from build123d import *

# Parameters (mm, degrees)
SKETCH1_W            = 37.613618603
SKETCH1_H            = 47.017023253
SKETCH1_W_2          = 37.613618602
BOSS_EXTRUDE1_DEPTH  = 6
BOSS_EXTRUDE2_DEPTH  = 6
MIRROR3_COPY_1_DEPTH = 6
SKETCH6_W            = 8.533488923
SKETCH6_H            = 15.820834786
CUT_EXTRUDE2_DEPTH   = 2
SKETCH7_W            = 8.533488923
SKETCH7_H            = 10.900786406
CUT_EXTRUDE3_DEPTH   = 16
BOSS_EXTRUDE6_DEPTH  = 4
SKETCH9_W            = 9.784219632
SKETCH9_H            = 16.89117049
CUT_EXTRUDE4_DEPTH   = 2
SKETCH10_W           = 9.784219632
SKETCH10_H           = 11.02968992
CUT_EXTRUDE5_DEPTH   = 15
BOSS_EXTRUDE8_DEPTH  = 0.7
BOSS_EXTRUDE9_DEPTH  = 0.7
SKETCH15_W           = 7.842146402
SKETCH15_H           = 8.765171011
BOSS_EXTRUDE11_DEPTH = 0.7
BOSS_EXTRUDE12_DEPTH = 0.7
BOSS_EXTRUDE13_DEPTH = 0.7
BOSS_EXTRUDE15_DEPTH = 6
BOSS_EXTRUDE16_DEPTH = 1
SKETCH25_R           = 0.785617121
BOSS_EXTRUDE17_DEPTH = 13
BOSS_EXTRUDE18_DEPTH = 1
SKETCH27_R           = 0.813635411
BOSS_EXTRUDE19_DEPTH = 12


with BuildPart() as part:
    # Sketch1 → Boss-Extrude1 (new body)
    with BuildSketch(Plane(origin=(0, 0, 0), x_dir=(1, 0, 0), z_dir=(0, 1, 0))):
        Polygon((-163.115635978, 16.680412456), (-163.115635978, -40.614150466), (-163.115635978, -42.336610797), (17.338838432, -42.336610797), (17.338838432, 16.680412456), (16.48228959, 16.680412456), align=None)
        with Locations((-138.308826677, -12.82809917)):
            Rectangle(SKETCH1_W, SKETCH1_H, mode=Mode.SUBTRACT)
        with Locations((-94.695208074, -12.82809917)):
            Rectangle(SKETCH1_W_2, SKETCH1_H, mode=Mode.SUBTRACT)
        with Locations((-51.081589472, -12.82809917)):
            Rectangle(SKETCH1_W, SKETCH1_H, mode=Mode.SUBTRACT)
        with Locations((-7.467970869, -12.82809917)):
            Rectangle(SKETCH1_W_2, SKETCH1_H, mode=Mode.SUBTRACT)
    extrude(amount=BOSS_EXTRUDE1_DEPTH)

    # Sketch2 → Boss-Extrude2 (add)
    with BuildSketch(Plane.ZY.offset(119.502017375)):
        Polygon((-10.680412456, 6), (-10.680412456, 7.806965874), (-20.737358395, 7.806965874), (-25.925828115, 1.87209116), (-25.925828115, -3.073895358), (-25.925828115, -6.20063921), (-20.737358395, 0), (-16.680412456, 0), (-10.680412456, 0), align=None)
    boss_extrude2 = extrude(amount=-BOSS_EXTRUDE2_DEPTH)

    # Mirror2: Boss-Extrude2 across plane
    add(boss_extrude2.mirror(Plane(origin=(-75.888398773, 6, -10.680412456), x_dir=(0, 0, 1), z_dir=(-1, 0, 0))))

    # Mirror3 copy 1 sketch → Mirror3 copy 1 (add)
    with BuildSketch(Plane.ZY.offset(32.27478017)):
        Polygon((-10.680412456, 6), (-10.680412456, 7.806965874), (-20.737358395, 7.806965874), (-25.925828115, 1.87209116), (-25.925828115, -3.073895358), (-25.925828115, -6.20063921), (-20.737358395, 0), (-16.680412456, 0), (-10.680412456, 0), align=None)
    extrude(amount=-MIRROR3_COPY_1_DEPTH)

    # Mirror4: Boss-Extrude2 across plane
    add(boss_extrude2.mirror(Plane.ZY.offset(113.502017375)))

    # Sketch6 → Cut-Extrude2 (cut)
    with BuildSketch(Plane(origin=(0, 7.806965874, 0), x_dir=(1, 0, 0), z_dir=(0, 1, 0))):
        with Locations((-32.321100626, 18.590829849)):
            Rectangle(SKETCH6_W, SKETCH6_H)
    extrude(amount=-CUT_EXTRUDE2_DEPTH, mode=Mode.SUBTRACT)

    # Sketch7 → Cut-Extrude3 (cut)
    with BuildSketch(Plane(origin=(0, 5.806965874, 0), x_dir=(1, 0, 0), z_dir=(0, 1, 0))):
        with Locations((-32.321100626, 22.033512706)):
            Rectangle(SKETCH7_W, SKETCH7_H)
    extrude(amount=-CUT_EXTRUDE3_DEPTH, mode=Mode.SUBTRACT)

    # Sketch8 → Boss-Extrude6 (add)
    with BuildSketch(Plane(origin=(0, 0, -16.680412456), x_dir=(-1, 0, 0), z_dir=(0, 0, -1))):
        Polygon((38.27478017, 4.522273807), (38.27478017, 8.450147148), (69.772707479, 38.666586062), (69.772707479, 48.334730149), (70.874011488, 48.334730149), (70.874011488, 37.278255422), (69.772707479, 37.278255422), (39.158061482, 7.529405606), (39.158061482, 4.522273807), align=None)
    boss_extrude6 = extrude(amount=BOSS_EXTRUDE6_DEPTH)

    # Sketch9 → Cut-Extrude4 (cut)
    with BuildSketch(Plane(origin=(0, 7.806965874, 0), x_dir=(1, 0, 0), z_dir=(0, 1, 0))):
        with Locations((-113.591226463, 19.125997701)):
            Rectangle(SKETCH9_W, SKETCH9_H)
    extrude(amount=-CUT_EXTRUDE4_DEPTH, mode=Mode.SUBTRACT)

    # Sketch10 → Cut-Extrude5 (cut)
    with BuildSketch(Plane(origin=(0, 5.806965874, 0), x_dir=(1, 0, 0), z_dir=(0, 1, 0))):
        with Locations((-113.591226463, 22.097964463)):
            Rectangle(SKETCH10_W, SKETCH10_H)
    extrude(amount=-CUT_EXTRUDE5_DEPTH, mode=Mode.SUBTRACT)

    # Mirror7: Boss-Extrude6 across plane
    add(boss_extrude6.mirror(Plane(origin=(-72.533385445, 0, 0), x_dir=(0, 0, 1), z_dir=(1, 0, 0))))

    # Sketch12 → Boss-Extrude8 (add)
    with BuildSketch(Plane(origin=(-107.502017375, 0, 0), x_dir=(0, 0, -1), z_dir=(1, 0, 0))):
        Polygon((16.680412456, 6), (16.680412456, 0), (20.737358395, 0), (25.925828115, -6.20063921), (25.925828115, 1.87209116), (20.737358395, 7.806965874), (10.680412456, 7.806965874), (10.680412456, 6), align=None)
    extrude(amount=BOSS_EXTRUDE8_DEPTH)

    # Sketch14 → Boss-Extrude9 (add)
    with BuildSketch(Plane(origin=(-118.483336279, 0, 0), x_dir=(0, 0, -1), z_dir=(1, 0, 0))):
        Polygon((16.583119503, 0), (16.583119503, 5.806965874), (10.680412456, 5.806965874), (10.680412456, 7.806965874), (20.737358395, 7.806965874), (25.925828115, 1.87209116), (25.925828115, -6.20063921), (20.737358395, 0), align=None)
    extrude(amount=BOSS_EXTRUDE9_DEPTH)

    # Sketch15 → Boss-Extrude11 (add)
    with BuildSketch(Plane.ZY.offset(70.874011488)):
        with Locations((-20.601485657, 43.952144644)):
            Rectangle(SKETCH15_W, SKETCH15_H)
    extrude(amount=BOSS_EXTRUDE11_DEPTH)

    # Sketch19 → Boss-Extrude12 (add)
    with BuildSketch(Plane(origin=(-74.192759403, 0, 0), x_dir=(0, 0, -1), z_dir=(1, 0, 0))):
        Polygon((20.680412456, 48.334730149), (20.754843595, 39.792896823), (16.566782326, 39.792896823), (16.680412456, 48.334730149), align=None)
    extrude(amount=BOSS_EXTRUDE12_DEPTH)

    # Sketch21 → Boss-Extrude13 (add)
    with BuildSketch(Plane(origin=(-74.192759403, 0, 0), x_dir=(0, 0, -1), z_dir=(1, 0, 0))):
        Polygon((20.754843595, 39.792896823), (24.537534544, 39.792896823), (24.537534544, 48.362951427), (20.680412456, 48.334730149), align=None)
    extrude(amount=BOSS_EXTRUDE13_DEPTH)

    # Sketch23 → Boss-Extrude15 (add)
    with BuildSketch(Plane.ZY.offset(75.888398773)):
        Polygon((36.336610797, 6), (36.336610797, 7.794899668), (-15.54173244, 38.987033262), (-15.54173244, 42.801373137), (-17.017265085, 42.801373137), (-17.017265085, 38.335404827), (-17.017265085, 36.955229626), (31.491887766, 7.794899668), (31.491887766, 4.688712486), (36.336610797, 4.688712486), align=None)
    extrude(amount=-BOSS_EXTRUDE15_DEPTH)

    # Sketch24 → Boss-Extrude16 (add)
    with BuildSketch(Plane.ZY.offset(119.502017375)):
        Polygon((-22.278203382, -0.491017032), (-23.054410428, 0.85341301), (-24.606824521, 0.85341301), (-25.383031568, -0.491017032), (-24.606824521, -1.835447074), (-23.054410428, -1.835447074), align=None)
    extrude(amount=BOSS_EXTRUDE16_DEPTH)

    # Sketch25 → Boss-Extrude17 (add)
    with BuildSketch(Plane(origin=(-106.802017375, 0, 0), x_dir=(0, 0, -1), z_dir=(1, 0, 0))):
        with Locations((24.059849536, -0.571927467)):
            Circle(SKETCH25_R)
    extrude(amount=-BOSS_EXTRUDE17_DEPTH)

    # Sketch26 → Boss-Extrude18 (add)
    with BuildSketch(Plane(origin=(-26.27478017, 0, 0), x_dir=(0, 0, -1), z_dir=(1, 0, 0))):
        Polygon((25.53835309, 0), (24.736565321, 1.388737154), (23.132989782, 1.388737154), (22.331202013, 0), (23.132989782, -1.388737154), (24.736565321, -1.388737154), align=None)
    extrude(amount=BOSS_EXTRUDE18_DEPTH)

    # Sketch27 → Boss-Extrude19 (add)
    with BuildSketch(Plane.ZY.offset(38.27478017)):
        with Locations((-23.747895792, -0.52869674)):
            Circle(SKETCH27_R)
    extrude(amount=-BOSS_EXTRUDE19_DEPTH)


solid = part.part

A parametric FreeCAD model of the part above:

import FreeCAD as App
import Part
import Sketcher

V = App.Vector
Q = App.Units.Quantity

doc = App.newDocument("Part")
body = doc.addObject("PartDesign::Body", "Body")

# Sketch on XZ plane
sketch1 = body.newObject("Sketcher::SketchObject", "Sketch")
sketch1.AttachmentSupport = (doc.getObject("XZ_Plane"), [""])
sketch1.MapMode = "FlatFace"
sketch1.addGeometry([
    Part.LineSegment(V(-163.115636, -16.680412, 0), V(-163.115636, 42.336611, 0)),  # 0
    Part.LineSegment(V(-163.115636, 42.336611, 0), V(17.338838, 42.336611, 0)),  # 1
    Part.LineSegment(V(17.338838, 42.336611, 0), V(17.338838, -16.680412, 0)),  # 2
    Part.LineSegment(V(17.338838, -16.680412, 0), V(-163.115636, -16.680412, 0)),  # 3
    Part.LineSegment(V(-119.502017, 36.336611, 0), V(-157.115636, 36.336611, 0)),  # 4
    Part.LineSegment(V(-157.115636, 36.336611, 0), V(-157.115636, -10.680412, 0)),  # 5
    Part.LineSegment(V(-157.115636, -10.680412, 0), V(-119.502017, -10.680412, 0)),  # 6
    Part.LineSegment(V(-119.502017, -10.680412, 0), V(-119.502017, 36.336611, 0)),  # 7
    Part.LineSegment(V(-75.888399, 36.336611, 0), V(-113.502017, 36.336611, 0)),  # 8
    Part.LineSegment(V(-113.502017, 36.336611, 0), V(-113.502017, -10.680412, 0)),  # 9
    Part.LineSegment(V(-113.502017, -10.680412, 0), V(-75.888399, -10.680412, 0)),  # 10
    Part.LineSegment(V(-75.888399, -10.680412, 0), V(-75.888399, 36.336611, 0)),  # 11
    Part.LineSegment(V(-32.27478, 36.336611, 0), V(-69.888399, 36.336611, 0)),  # 12
    Part.LineSegment(V(-69.888399, 36.336611, 0), V(-69.888399, -10.680412, 0)),  # 13
    Part.LineSegment(V(-69.888399, -10.680412, 0), V(-32.27478, -10.680412, 0)),  # 14
    Part.LineSegment(V(-32.27478, -10.680412, 0), V(-32.27478, 36.336611, 0)),  # 15
    Part.LineSegment(V(11.338838, 36.336611, 0), V(-26.27478, 36.336611, 0)),  # 16
    Part.LineSegment(V(-26.27478, 36.336611, 0), V(-26.27478, -10.680412, 0)),  # 17
    Part.LineSegment(V(-26.27478, -10.680412, 0), V(11.338838, -10.680412, 0)),  # 18
    Part.LineSegment(V(11.338838, -10.680412, 0), V(11.338838, 36.336611, 0)),  # 19
], False)
sketch1.addConstraint([
    Sketcher.Constraint("Coincident", 0, 2, 1, 1),
    Sketcher.Constraint("Coincident", 1, 2, 2, 1),
    Sketcher.Constraint("Coincident", 2, 2, 3, 1),
    Sketcher.Constraint("Coincident", 3, 2, 0, 1),
    Sketcher.Constraint("Coincident", 4, 2, 5, 1),
    Sketcher.Constraint("Coincident", 5, 2, 6, 1),
    Sketcher.Constraint("Coincident", 6, 2, 7, 1),
    Sketcher.Constraint("Coincident", 7, 2, 4, 1),
    Sketcher.Constraint("Coincident", 8, 2, 9, 1),
    Sketcher.Constraint("Coincident", 9, 2, 10, 1),
    Sketcher.Constraint("Coincident", 10, 2, 11, 1),
    Sketcher.Constraint("Coincident", 11, 2, 8, 1),
    Sketcher.Constraint("Coincident", 12, 2, 13, 1),
    Sketcher.Constraint("Coincident", 13, 2, 14, 1),
    Sketcher.Constraint("Coincident", 14, 2, 15, 1),
    Sketcher.Constraint("Coincident", 15, 2, 12, 1),
    Sketcher.Constraint("Coincident", 16, 2, 17, 1),
    Sketcher.Constraint("Coincident", 17, 2, 18, 1),
    Sketcher.Constraint("Coincident", 18, 2, 19, 1),
    Sketcher.Constraint("Coincident", 19, 2, 16, 1),
    Sketcher.Constraint("Vertical", 0),
    Sketcher.Constraint("Horizontal", 1),
    Sketcher.Constraint("Vertical", 2),
    Sketcher.Constraint("Horizontal", 3),
    Sketcher.Constraint("Horizontal", 4),
    Sketcher.Constraint("Vertical", 5),
    Sketcher.Constraint("Horizontal", 6),
    Sketcher.Constraint("Vertical", 7),
    Sketcher.Constraint("Horizontal", 8),
    Sketcher.Constraint("Vertical", 9),
    Sketcher.Constraint("Horizontal", 10),
    Sketcher.Constraint("Vertical", 11),
    Sketcher.Constraint("Horizontal", 12),
    Sketcher.Constraint("Vertical", 13),
    Sketcher.Constraint("Horizontal", 14),
    Sketcher.Constraint("Vertical", 15),
    Sketcher.Constraint("Horizontal", 16),
    Sketcher.Constraint("Vertical", 17),
    Sketcher.Constraint("Horizontal", 18),
    Sketcher.Constraint("Vertical", 19),
    Sketcher.Constraint("Horizontal", 7, 2, 8, 2),
    Sketcher.Constraint("Horizontal", 6, 2, 9, 2),
    Sketcher.Constraint("Horizontal", 11, 2, 12, 2),
    Sketcher.Constraint("Horizontal", 10, 2, 13, 2),
    Sketcher.Constraint("Horizontal", 15, 2, 16, 2),
    Sketcher.Constraint("Horizontal", 14, 2, 17, 2),
    Sketcher.Constraint("Equal", 6, 8),
    Sketcher.Constraint("Equal", 10, 12),
    Sketcher.Constraint("Equal", 14, 16),
    Sketcher.Constraint("DistanceX", 0, 2, 4, 2, Q("6 mm")),
    Sketcher.Constraint("DistanceY", 4, 2, 0, 2, Q("6 mm")),
    Sketcher.Constraint("DistanceY", 3, 2, 5, 2, Q("6 mm")),
    Sketcher.Constraint("DistanceX", 7, 2, 8, 2, Q("6 mm")),
    Sketcher.Constraint("DistanceX", 11, 2, 12, 2, Q("6 mm")),
    Sketcher.Constraint("DistanceX", 15, 2, 16, 2, Q("6 mm")),
    Sketcher.Constraint("DistanceX", 18, 2, 2, 2, Q("6 mm")),
    Sketcher.Constraint("DistanceX", 4, 2, 4, 1, Q("37.613619 mm")),
    Sketcher.Constraint("DistanceX", 10, 2, -1, 1, Q("75.888399 mm")),
    Sketcher.Constraint("DistanceY", 0, 1, 0, 2, Q("59.017023 mm")),
    Sketcher.Constraint("DistanceY", -1, 1, 0, 2, Q("42.336611 mm")),
])
pad1 = body.newObject("PartDesign::Pad", "Pad")
pad1.Profile = sketch1
pad1.Length = 6
pad1.Reversed = True

# Sketch on YZ plane
sketch2 = body.newObject("Sketcher::SketchObject", "Sketch001")
sketch2.AttachmentSupport = (doc.getObject("YZ_Plane"), [""])
sketch2.MapMode = "FlatFace"
sketch2.AttachmentOffset = App.Placement(V(0, 0, -119.502017), App.Rotation())
sketch2.addGeometry([
    Part.LineSegment(V(7.806966, -10.680412, 0), V(7.806966, -20.737358, 0)),  # 0
    Part.LineSegment(V(7.806966, -20.737358, 0), V(1.872091, -25.925828, 0)),  # 1
    Part.LineSegment(V(1.872091, -25.925828, 0), V(-6.200639, -25.925828, 0)),  # 2
    Part.LineSegment(V(-6.200639, -25.925828, 0), V(0, -20.737358, 0)),  # 3
    Part.LineSegment(V(0, -20.737358, 0), V(0, -10.680412, 0)),  # 4
    Part.LineSegment(V(0, -10.680412, 0), V(7.806966, -10.680412, 0)),  # 5
], False)
sketch2.addConstraint([
    Sketcher.Constraint("Coincident", 0, 2, 1, 1),
    Sketcher.Constraint("Coincident", 1, 2, 2, 1),
    Sketcher.Constraint("Coincident", 2, 2, 3, 1),
    Sketcher.Constraint("Coincident", 3, 2, 4, 1),
    Sketcher.Constraint("Coincident", 4, 2, 5, 1),
    Sketcher.Constraint("Coincident", 5, 2, 0, 1),
    Sketcher.Constraint("Vertical", 0),
    Sketcher.Constraint("Horizontal", 2),
    Sketcher.Constraint("Vertical", 4),
    Sketcher.Constraint("Horizontal", 5),
    Sketcher.Constraint("PointOnObject", 3, 2, -2),
    Sketcher.Constraint("Horizontal", 0, 2, 3, 2),
    Sketcher.Constraint("DistanceX", 2, 2, 2, 1, Q("8.07273 mm")),
    Sketcher.Constraint("Distance", 1, Q("7.88308 mm")),
    Sketcher.Constraint("DistanceX", 5, 1, 5, 2, Q("7.806966 mm")),
    Sketcher.Constraint("DistanceY", 0, 2, 0, 1, Q("10.056946 mm")),
    Sketcher.Constraint("DistanceY", 0, 2, -1, 1, Q("20.737358 mm")),
    Sketcher.Constraint("DistanceX", -1, 1, 1, 2, Q("1.872091 mm")),
])
pad2 = body.newObject("PartDesign::Pad", "Pad001")
pad2.Profile = sketch2
pad2.Length = 6
doc.recompute()

datumplane = body.newObject("PartDesign::Plane", "DatumPlane")
datumplane.AttachmentSupport = (doc.getObject("YZ_Plane"), [""])
datumplane.MapMode = "FlatFace"
datumplane.AttachmentOffset = App.Placement(V(0, 0, -75.888399), App.Rotation())
mirrored = body.newObject("PartDesign::Mirrored", "Mirrored")
mirrored.Originals = [pad2]
mirrored.MirrorPlane = (datumplane, [""])
body.Tip = mirrored

# Sketch on YZ plane
sketch3 = body.newObject("Sketcher::SketchObject", "Sketch002")
sketch3.AttachmentSupport = (doc.getObject("YZ_Plane"), [""])
sketch3.MapMode = "FlatFace"
sketch3.AttachmentOffset = App.Placement(V(0, 0, -32.27478), App.Rotation())
sketch3.addGeometry([
    Part.LineSegment(V(7.806966, -10.680412, 0), V(7.806966, -20.737358, 0)),  # 0
    Part.LineSegment(V(7.806966, -20.737358, 0), V(1.872091, -25.925828, 0)),  # 1
    Part.LineSegment(V(1.872091, -25.925828, 0), V(-6.200639, -25.925828, 0)),  # 2
    Part.LineSegment(V(-6.200639, -25.925828, 0), V(0, -20.737358, 0)),  # 3
    Part.LineSegment(V(0, -20.737358, 0), V(0, -10.680412, 0)),  # 4
    Part.LineSegment(V(0, -10.680412, 0), V(7.806966, -10.680412, 0)),  # 5
], False)
sketch3.addConstraint([
    Sketcher.Constraint("Coincident", 0, 2, 1, 1),
    Sketcher.Constraint("Coincident", 1, 2, 2, 1),
    Sketcher.Constraint("Coincident", 2, 2, 3, 1),
    Sketcher.Constraint("Coincident", 3, 2, 4, 1),
    Sketcher.Constraint("Coincident", 4, 2, 5, 1),
    Sketcher.Constraint("Coincident", 5, 2, 0, 1),
    Sketcher.Constraint("Vertical", 0),
    Sketcher.Constraint("Horizontal", 2),
    Sketcher.Constraint("Vertical", 4),
    Sketcher.Constraint("Horizontal", 5),
    Sketcher.Constraint("PointOnObject", 3, 2, -2),
    Sketcher.Constraint("Horizontal", 0, 2, 3, 2),
    Sketcher.Constraint("DistanceX", 2, 2, 2, 1, Q("8.07273 mm")),
    Sketcher.Constraint("Distance", 1, Q("7.88308 mm")),
    Sketcher.Constraint("DistanceX", 5, 1, 5, 2, Q("7.806966 mm")),
    Sketcher.Constraint("DistanceY", 0, 2, 0, 1, Q("10.056946 mm")),
    Sketcher.Constraint("DistanceY", 0, 2, -1, 1, Q("20.737358 mm")),
    Sketcher.Constraint("DistanceX", -1, 1, 1, 2, Q("1.872091 mm")),
])
pad3 = body.newObject("PartDesign::Pad", "Pad002")
pad3.Profile = sketch3
pad3.Length = 6
doc.recompute()

datumplane2 = body.newObject("PartDesign::Plane", "DatumPlane001")
datumplane2.AttachmentSupport = (doc.getObject("YZ_Plane"), [""])
datumplane2.MapMode = "FlatFace"
datumplane2.AttachmentOffset = App.Placement(V(0, 0, -113.502017), App.Rotation())
mirrored2 = body.newObject("PartDesign::Mirrored", "Mirrored001")
mirrored2.Originals = [pad2]
mirrored2.MirrorPlane = (datumplane2, [""])
body.Tip = mirrored2

# Sketch on XZ plane
sketch4 = body.newObject("Sketcher::SketchObject", "Sketch003")
sketch4.AttachmentSupport = (doc.getObject("XZ_Plane"), [""])
sketch4.MapMode = "FlatFace"
sketch4.AttachmentOffset = App.Placement(V(0, 0, -7.806966), App.Rotation())
sketch4.addGeometry([
    Part.LineSegment(V(-36.587845, -26.501247, 0), V(-36.587845, -10.680412, 0)),
    Part.LineSegment(V(-36.587845, -10.680412, 0), V(-28.054356, -10.680412, 0)),
    Part.LineSegment(V(-28.054356, -10.680412, 0), V(-28.054356, -26.501247, 0)),
    Part.LineSegment(V(-28.054356, -26.501247, 0), V(-36.587845, -26.501247, 0)),
], False)
sketch4.addConstraint([
    Sketcher.Constraint("Coincident", 0, 2, 1, 1),
    Sketcher.Constraint("Coincident", 1, 2, 2, 1),
    Sketcher.Constraint("Coincident", 2, 2, 3, 1),
    Sketcher.Constraint("Coincident", 3, 2, 0, 1),
    Sketcher.Constraint("Vertical", 0),
    Sketcher.Constraint("Horizontal", 1),
    Sketcher.Constraint("Vertical", 2),
    Sketcher.Constraint("Horizontal", 3),
    Sketcher.Constraint("DistanceX", 1, 1, 1, 2, Q("8.533489 mm")),
    Sketcher.Constraint("DistanceY", 0, 1, 0, 2, Q("15.820835 mm")),
    Sketcher.Constraint("DistanceX", 0, 2, -1, 1, Q("36.587845 mm")),
    Sketcher.Constraint("DistanceY", 0, 2, -1, 1, Q("10.680412 mm")),
])
pocket1 = body.newObject("PartDesign::Pocket", "Pocket")
pocket1.Profile = sketch4
pocket1.Length = 2
pocket1.Reversed = True

# Sketch on XZ plane
sketch5 = body.newObject("Sketcher::SketchObject", "Sketch004")
sketch5.AttachmentSupport = (doc.getObject("XZ_Plane"), [""])
sketch5.MapMode = "FlatFace"
sketch5.AttachmentOffset = App.Placement(V(0, 0, -5.806966), App.Rotation())
sketch5.addGeometry([
    Part.LineSegment(V(-36.587845, -27.483906, 0), V(-36.587845, -16.58312, 0)),
    Part.LineSegment(V(-36.587845, -16.58312, 0), V(-28.054356, -16.58312, 0)),
    Part.LineSegment(V(-28.054356, -16.58312, 0), V(-28.054356, -27.483906, 0)),
    Part.LineSegment(V(-28.054356, -27.483906, 0), V(-36.587845, -27.483906, 0)),
], False)
sketch5.addConstraint([
    Sketcher.Constraint("Coincident", 0, 2, 1, 1),
    Sketcher.Constraint("Coincident", 1, 2, 2, 1),
    Sketcher.Constraint("Coincident", 2, 2, 3, 1),
    Sketcher.Constraint("Coincident", 3, 2, 0, 1),
    Sketcher.Constraint("Vertical", 0),
    Sketcher.Constraint("Horizontal", 1),
    Sketcher.Constraint("Vertical", 2),
    Sketcher.Constraint("Horizontal", 3),
    Sketcher.Constraint("DistanceX", 1, 1, 1, 2, Q("8.533489 mm")),
    Sketcher.Constraint("DistanceY", 0, 1, 0, 2, Q("10.900786 mm")),
    Sketcher.Constraint("DistanceY", 0, 2, -1, 1, Q("16.58312 mm")),
    Sketcher.Constraint("DistanceX", 0, 2, -1, 1, Q("36.587845 mm")),
])
pocket2 = body.newObject("PartDesign::Pocket", "Pocket001")
pocket2.Profile = sketch5
pocket2.Length = 16
pocket2.Reversed = True

# Sketch on XY plane
sketch6 = body.newObject("Sketcher::SketchObject", "Sketch005")
sketch6.AttachmentSupport = (doc.getObject("XY_Plane"), [""])
sketch6.MapMode = "FlatFace"
sketch6.AttachmentOffset = App.Placement(V(0, 0, -16.680412), App.Rotation())
sketch6.addGeometry([
    Part.LineSegment(V(-38.27478, 8.450147, 0), V(-38.27478, 4.522274, 0)),  # 0
    Part.LineSegment(V(-38.27478, 4.522274, 0), V(-39.158061, 4.522274, 0)),  # 1
    Part.LineSegment(V(-39.158061, 4.522274, 0), V(-39.158061, 7.529406, 0)),  # 2
    Part.LineSegment(V(-39.158061, 7.529406, 0), V(-69.772707, 37.278255, 0)),  # 3
    Part.LineSegment(V(-69.772707, 37.278255, 0), V(-70.874011, 37.278255, 0)),  # 4
    Part.LineSegment(V(-70.874011, 37.278255, 0), V(-70.874011, 48.33473, 0)),  # 5
    Part.LineSegment(V(-70.874011, 48.33473, 0), V(-69.772707, 48.33473, 0)),  # 6
    Part.LineSegment(V(-69.772707, 48.33473, 0), V(-69.772707, 38.666586, 0)),  # 7
    Part.LineSegment(V(-69.772707, 38.666586, 0), V(-38.27478, 8.450147, 0)),  # 8
], False)
sketch6.addConstraint([
    Sketcher.Constraint("Coincident", 0, 2, 1, 1),
    Sketcher.Constraint("Coincident", 1, 2, 2, 1),
    Sketcher.Constraint("Coincident", 2, 2, 3, 1),
    Sketcher.Constraint("Coincident", 3, 2, 4, 1),
    Sketcher.Constraint("Coincident", 4, 2, 5, 1),
    Sketcher.Constraint("Coincident", 5, 2, 6, 1),
    Sketcher.Constraint("Coincident", 6, 2, 7, 1),
    Sketcher.Constraint("Coincident", 7, 2, 8, 1),
    Sketcher.Constraint("Coincident", 8, 2, 0, 1),
    Sketcher.Constraint("Vertical", 0),
    Sketcher.Constraint("Horizontal", 1),
    Sketcher.Constraint("Vertical", 2),
    Sketcher.Constraint("Horizontal", 4),
    Sketcher.Constraint("Vertical", 5),
    Sketcher.Constraint("Horizontal", 6),
    Sketcher.Constraint("Vertical", 7),
    Sketcher.Constraint("Vertical", 3, 2, 6, 2),
    Sketcher.Constraint("DistanceX", 1, 2, 1, 1, Q("0.883281 mm")),
    Sketcher.Constraint("DistanceY", 2, 1, 2, 2, Q("3.007132 mm")),
    Sketcher.Constraint("DistanceX", 4, 2, 4, 1, Q("1.101304 mm")),
    Sketcher.Constraint("DistanceY", 0, 2, 0, 1, Q("3.927873 mm")),
    Sketcher.Constraint("DistanceY", 5, 1, 5, 2, Q("11.056475 mm")),
    Sketcher.Constraint("DistanceY", 7, 2, 7, 1, Q("9.668144 mm")),
    Sketcher.Constraint("DistanceX", 0, 2, -1, 1, Q("38.27478 mm")),
    Sketcher.Constraint("DistanceX", 4, 2, -1, 1, Q("70.874011 mm")),
    Sketcher.Constraint("DistanceY", -1, 1, 5, 2, Q("48.33473 mm")),
    Sketcher.Constraint("DistanceY", 2, 2, 3, 2, Q("29.74885 mm")),
])
pad4 = body.newObject("PartDesign::Pad", "Pad003")
pad4.Profile = sketch6
pad4.Length = 4
pad4.Reversed = True

# Sketch on XZ plane
sketch7 = body.newObject("Sketcher::SketchObject", "Sketch006")
sketch7.AttachmentSupport = (doc.getObject("XZ_Plane"), [""])
sketch7.MapMode = "FlatFace"
sketch7.AttachmentOffset = App.Placement(V(0, 0, -7.806966), App.Rotation())
sketch7.addGeometry([
    Part.LineSegment(V(-118.483336, -27.571583, 0), V(-118.483336, -10.680412, 0)),
    Part.LineSegment(V(-118.483336, -10.680412, 0), V(-108.699117, -10.680412, 0)),
    Part.LineSegment(V(-108.699117, -10.680412, 0), V(-108.699117, -27.571583, 0)),
    Part.LineSegment(V(-108.699117, -27.571583, 0), V(-118.483336, -27.571583, 0)),
], False)
sketch7.addConstraint([
    Sketcher.Constraint("Coincident", 0, 2, 1, 1),
    Sketcher.Constraint("Coincident", 1, 2, 2, 1),
    Sketcher.Constraint("Coincident", 2, 2, 3, 1),
    Sketcher.Constraint("Coincident", 3, 2, 0, 1),
    Sketcher.Constraint("Vertical", 0),
    Sketcher.Constraint("Horizontal", 1),
    Sketcher.Constraint("Vertical", 2),
    Sketcher.Constraint("Horizontal", 3),
    Sketcher.Constraint("DistanceX", 1, 1, 1, 2, Q("9.78422 mm")),
    Sketcher.Constraint("DistanceY", 0, 1, 0, 2, Q("16.89117 mm")),
    Sketcher.Constraint("DistanceX", 0, 2, -1, 1, Q("118.483336 mm")),
    Sketcher.Constraint("DistanceY", 0, 2, -1, 1, Q("10.680412 mm")),
])
pocket3 = body.newObject("PartDesign::Pocket", "Pocket002")
pocket3.Profile = sketch7
pocket3.Length = 2
pocket3.Reversed = True

# Sketch on XZ plane
sketch8 = body.newObject("Sketcher::SketchObject", "Sketch007")
sketch8.AttachmentSupport = (doc.getObject("XZ_Plane"), [""])
sketch8.MapMode = "FlatFace"
sketch8.AttachmentOffset = App.Placement(V(0, 0, -5.806966), App.Rotation())
sketch8.addGeometry([
    Part.LineSegment(V(-118.483336, -27.612809, 0), V(-118.483336, -16.58312, 0)),
    Part.LineSegment(V(-118.483336, -16.58312, 0), V(-108.699117, -16.58312, 0)),
    Part.LineSegment(V(-108.699117, -16.58312, 0), V(-108.699117, -27.612809, 0)),
    Part.LineSegment(V(-108.699117, -27.612809, 0), V(-118.483336, -27.612809, 0)),
], False)
sketch8.addConstraint([
    Sketcher.Constraint("Coincident", 0, 2, 1, 1),
    Sketcher.Constraint("Coincident", 1, 2, 2, 1),
    Sketcher.Constraint("Coincident", 2, 2, 3, 1),
    Sketcher.Constraint("Coincident", 3, 2, 0, 1),
    Sketcher.Constraint("Vertical", 0),
    Sketcher.Constraint("Horizontal", 1),
    Sketcher.Constraint("Vertical", 2),
    Sketcher.Constraint("Horizontal", 3),
    Sketcher.Constraint("DistanceX", 1, 1, 1, 2, Q("9.78422 mm")),
    Sketcher.Constraint("DistanceY", 0, 1, 0, 2, Q("11.02969 mm")),
    Sketcher.Constraint("DistanceY", 0, 2, -1, 1, Q("16.58312 mm")),
    Sketcher.Constraint("DistanceX", 0, 2, -1, 1, Q("118.483336 mm")),
])
pocket4 = body.newObject("PartDesign::Pocket", "Pocket003")
pocket4.Profile = sketch8
pocket4.Length = 15
pocket4.Reversed = True
doc.recompute()

datumplane3 = body.newObject("PartDesign::Plane", "DatumPlane002")
datumplane3.AttachmentSupport = (doc.getObject("YZ_Plane"), [""])
datumplane3.MapMode = "FlatFace"
datumplane3.AttachmentOffset = App.Placement(V(0, 0, -72.533385), App.Rotation())
mirrored3 = body.newObject("PartDesign::Mirrored", "Mirrored002")
mirrored3.Originals = [pad4]
mirrored3.MirrorPlane = (datumplane3, [""])
body.Tip = mirrored3

# Sketch on YZ plane
sketch9 = body.newObject("Sketcher::SketchObject", "Sketch008")
sketch9.AttachmentSupport = (doc.getObject("YZ_Plane"), [""])
sketch9.MapMode = "FlatFace"
sketch9.AttachmentOffset = App.Placement(V(0, 0, -107.502017), App.Rotation())
sketch9.addGeometry([
    Part.LineSegment(V(6, -16.680412, 0), V(0, -16.680412, 0)),  # 0
    Part.LineSegment(V(0, -16.680412, 0), V(0, -20.737358, 0)),  # 1
    Part.LineSegment(V(0, -20.737358, 0), V(-6.200639, -25.925828, 0)),  # 2
    Part.LineSegment(V(-6.200639, -25.925828, 0), V(1.872091, -25.925828, 0)),  # 3
    Part.LineSegment(V(1.872091, -25.925828, 0), V(7.806966, -20.737358, 0)),  # 4
    Part.LineSegment(V(7.806966, -20.737358, 0), V(7.806966, -10.680412, 0)),  # 5
    Part.LineSegment(V(7.806966, -10.680412, 0), V(6, -10.680412, 0)),  # 6
    Part.LineSegment(V(6, -10.680412, 0), V(6, -16.680412, 0)),  # 7
], False)
sketch9.addConstraint([
    Sketcher.Constraint("Coincident", 0, 2, 1, 1),
    Sketcher.Constraint("Coincident", 1, 2, 2, 1),
    Sketcher.Constraint("Coincident", 2, 2, 3, 1),
    Sketcher.Constraint("Coincident", 3, 2, 4, 1),
    Sketcher.Constraint("Coincident", 4, 2, 5, 1),
    Sketcher.Constraint("Coincident", 5, 2, 6, 1),
    Sketcher.Constraint("Coincident", 6, 2, 7, 1),
    Sketcher.Constraint("Coincident", 7, 2, 0, 1),
    Sketcher.Constraint("Horizontal", 0),
    Sketcher.Constraint("Vertical", 1),
    Sketcher.Constraint("Horizontal", 3),
    Sketcher.Constraint("Vertical", 5),
    Sketcher.Constraint("Horizontal", 6),
    Sketcher.Constraint("Vertical", 7),
    Sketcher.Constraint("PointOnObject", 0, 2, -2),
    Sketcher.Constraint("Horizontal", 1, 2, 4, 2),
    Sketcher.Constraint("Equal", 0, 7),
    Sketcher.Constraint("DistanceX", 0, 2, 0, 1, Q("6 mm")),
    Sketcher.Constraint("DistanceX", 3, 1, 3, 2, Q("8.07273 mm")),
    Sketcher.Constraint("Distance", 4, Q("7.88308 mm")),
    Sketcher.Constraint("DistanceX", 6, 2, 6, 1, Q("1.806966 mm")),
    Sketcher.Constraint("DistanceY", 1, 2, 1, 1, Q("4.056946 mm")),
    Sketcher.Constraint("DistanceY", 1, 2, -1, 1, Q("20.737358 mm")),
    Sketcher.Constraint("DistanceX", 2, 2, -1, 1, Q("6.200639 mm")),
])
pad5 = body.newObject("PartDesign::Pad", "Pad004")
pad5.Profile = sketch9
pad5.Length = 0.7

# Sketch on YZ plane
sketch10 = body.newObject("Sketcher::SketchObject", "Sketch009")
sketch10.AttachmentSupport = (doc.getObject("YZ_Plane"), [""])
sketch10.MapMode = "FlatFace"
sketch10.AttachmentOffset = App.Placement(V(0, 0, -118.483336), App.Rotation())
sketch10.addGeometry([
    Part.LineSegment(V(5.806966, -16.58312, 0), V(0, -16.58312, 0)),  # 0
    Part.LineSegment(V(0, -16.58312, 0), V(0, -20.737358, 0)),  # 1
    Part.LineSegment(V(0, -20.737358, 0), V(-6.200639, -25.925828, 0)),  # 2
    Part.LineSegment(V(-6.200639, -25.925828, 0), V(1.872091, -25.925828, 0)),  # 3
    Part.LineSegment(V(1.872091, -25.925828, 0), V(7.806966, -20.737358, 0)),  # 4
    Part.LineSegment(V(7.806966, -20.737358, 0), V(7.806966, -10.680412, 0)),  # 5
    Part.LineSegment(V(7.806966, -10.680412, 0), V(5.806966, -10.680412, 0)),  # 6
    Part.LineSegment(V(5.806966, -10.680412, 0), V(5.806966, -16.58312, 0)),  # 7
], False)
sketch10.addConstraint([
    Sketcher.Constraint("Coincident", 0, 2, 1, 1),
    Sketcher.Constraint("Coincident", 1, 2, 2, 1),
    Sketcher.Constraint("Coincident", 2, 2, 3, 1),
    Sketcher.Constraint("Coincident", 3, 2, 4, 1),
    Sketcher.Constraint("Coincident", 4, 2, 5, 1),
    Sketcher.Constraint("Coincident", 5, 2, 6, 1),
    Sketcher.Constraint("Coincident", 6, 2, 7, 1),
    Sketcher.Constraint("Coincident", 7, 2, 0, 1),
    Sketcher.Constraint("Horizontal", 0),
    Sketcher.Constraint("Vertical", 1),
    Sketcher.Constraint("Horizontal", 3),
    Sketcher.Constraint("Vertical", 5),
    Sketcher.Constraint("Horizontal", 6),
    Sketcher.Constraint("Vertical", 7),
    Sketcher.Constraint("PointOnObject", 0, 2, -2),
    Sketcher.Constraint("Horizontal", 1, 2, 4, 2),
    Sketcher.Constraint("DistanceX", 6, 2, 6, 1, Q("2 mm")),
    Sketcher.Constraint("DistanceX", 3, 1, 3, 2, Q("8.07273 mm")),
    Sketcher.Constraint("DistanceY", 1, 2, 1, 1, Q("4.154239 mm")),
    Sketcher.Constraint("Distance", 4, Q("7.88308 mm")),
    Sketcher.Constraint("DistanceX", 0, 2, 0, 1, Q("5.806966 mm")),
    Sketcher.Constraint("DistanceY", 5, 1, 5, 2, Q("10.056946 mm")),
    Sketcher.Constraint("DistanceY", 0, 2, -1, 1, Q("16.58312 mm")),
    Sketcher.Constraint("DistanceX", 2, 2, -1, 1, Q("6.200639 mm")),
])
pad6 = body.newObject("PartDesign::Pad", "Pad005")
pad6.Profile = sketch10
pad6.Length = 0.7

# Sketch on YZ plane
sketch11 = body.newObject("Sketcher::SketchObject", "Sketch010")
sketch11.AttachmentSupport = (doc.getObject("YZ_Plane"), [""])
sketch11.MapMode = "FlatFace"
sketch11.AttachmentOffset = App.Placement(V(0, 0, -70.874011), App.Rotation())
sketch11.addGeometry([
    Part.LineSegment(V(48.33473, -24.522559, 0), V(39.569559, -24.522559, 0)),
    Part.LineSegment(V(39.569559, -24.522559, 0), V(39.569559, -16.680412, 0)),
    Part.LineSegment(V(39.569559, -16.680412, 0), V(48.33473, -16.680412, 0)),
    Part.LineSegment(V(48.33473, -16.680412, 0), V(48.33473, -24.522559, 0)),
], False)
sketch11.addConstraint([
    Sketcher.Constraint("Coincident", 0, 2, 1, 1),
    Sketcher.Constraint("Coincident", 1, 2, 2, 1),
    Sketcher.Constraint("Coincident", 2, 2, 3, 1),
    Sketcher.Constraint("Coincident", 3, 2, 0, 1),
    Sketcher.Constraint("Horizontal", 0),
    Sketcher.Constraint("Vertical", 1),
    Sketcher.Constraint("Horizontal", 2),
    Sketcher.Constraint("Vertical", 3),
    Sketcher.Constraint("DistanceX", 0, 2, 0, 1, Q("8.765171 mm")),
    Sketcher.Constraint("DistanceY", 1, 1, 1, 2, Q("7.842146 mm")),
    Sketcher.Constraint("DistanceX", -1, 1, 0, 2, Q("39.569559 mm")),
    Sketcher.Constraint("DistanceY", 0, 2, -1, 1, Q("24.522559 mm")),
])
pad7 = body.newObject("PartDesign::Pad", "Pad006")
pad7.Profile = sketch11
pad7.Length = 0.7
pad7.Reversed = True

# Sketch on YZ plane
sketch12 = body.newObject("Sketcher::SketchObject", "Sketch011")
sketch12.AttachmentSupport = (doc.getObject("YZ_Plane"), [""])
sketch12.MapMode = "FlatFace"
sketch12.AttachmentOffset = App.Placement(V(0, 0, -74.192759), App.Rotation())
sketch12.addGeometry([
    Part.LineSegment(V(39.792897, -20.754844, 0), V(48.33473, -20.680412, 0)),
    Part.LineSegment(V(48.33473, -20.680412, 0), V(48.33473, -16.680412, 0)),
    Part.LineSegment(V(48.33473, -16.680412, 0), V(39.792897, -16.566782, 0)),
    Part.LineSegment(V(39.792897, -16.566782, 0), V(39.792897, -20.754844, 0)),
], False)
sketch12.addConstraint([
    Sketcher.Constraint("Coincident", 0, 2, 1, 1),
    Sketcher.Constraint("Coincident", 1, 2, 2, 1),
    Sketcher.Constraint("Coincident", 2, 2, 3, 1),
    Sketcher.Constraint("Coincident", 3, 2, 0, 1),
    Sketcher.Constraint("Vertical", 1),
    Sketcher.Constraint("Vertical", 3),
    Sketcher.Constraint("DistanceY", 1, 1, 1, 2, Q("4 mm")),
    Sketcher.Constraint("DistanceY", 3, 2, 3, 1, Q("4.188061 mm")),
    Sketcher.Constraint("Distance", 2, Q("8.542589 mm")),
    Sketcher.Constraint("DistanceX", -1, 1, 0, 2, Q("48.33473 mm")),
    Sketcher.Constraint("DistanceY", 1, 2, 2, 2, Q("0.11363 mm")),
    Sketcher.Constraint("DistanceY", 0, 2, -1, 1, Q("20.680412 mm")),
])
pad8 = body.newObject("PartDesign::Pad", "Pad007")
pad8.Profile = sketch12
pad8.Length = 0.7

# Sketch on YZ plane
sketch13 = body.newObject("Sketcher::SketchObject", "Sketch012")
sketch13.AttachmentSupport = (doc.getObject("YZ_Plane"), [""])
sketch13.MapMode = "FlatFace"
sketch13.AttachmentOffset = App.Placement(V(0, 0, -74.192759), App.Rotation())
sketch13.addGeometry([
    Part.LineSegment(V(39.792897, -20.754844, 0), V(39.792897, -24.537535, 0)),
    Part.LineSegment(V(39.792897, -24.537535, 0), V(48.362951, -24.537535, 0)),
    Part.LineSegment(V(48.362951, -24.537535, 0), V(48.33473, -20.680412, 0)),
    Part.LineSegment(V(48.33473, -20.680412, 0), V(39.792897, -20.754844, 0)),
], False)
sketch13.addConstraint([
    Sketcher.Constraint("Coincident", 0, 2, 1, 1),
    Sketcher.Constraint("Coincident", 1, 2, 2, 1),
    Sketcher.Constraint("Coincident", 2, 2, 3, 1),
    Sketcher.Constraint("Coincident", 3, 2, 0, 1),
    Sketcher.Constraint("Vertical", 0),
    Sketcher.Constraint("Horizontal", 1),
    Sketcher.Constraint("DistanceY", 0, 2, 0, 1, Q("3.782691 mm")),
    Sketcher.Constraint("DistanceX", 1, 1, 1, 2, Q("8.570055 mm")),
    Sketcher.Constraint("DistanceX", -1, 1, 1, 2, Q("48.362951 mm")),
    Sketcher.Constraint("DistanceX", -1, 1, 2, 2, Q("48.33473 mm")),
    Sketcher.Constraint("DistanceY", 3, 2, 2, 2, Q("0.074431 mm")),
    Sketcher.Constraint("DistanceY", 0, 2, -1, 1, Q("24.537535 mm")),
])
pad9 = body.newObject("PartDesign::Pad", "Pad008")
pad9.Profile = sketch13
pad9.Length = 0.7

# Sketch on YZ plane
sketch14 = body.newObject("Sketcher::SketchObject", "Sketch013")
sketch14.AttachmentSupport = (doc.getObject("YZ_Plane"), [""])
sketch14.MapMode = "FlatFace"
sketch14.AttachmentOffset = App.Placement(V(0, 0, -75.888399), App.Rotation())
sketch14.addGeometry([
    Part.LineSegment(V(7.7949, 36.336611, 0), V(38.987033, -15.541732, 0)),  # 0
    Part.LineSegment(V(38.987033, -15.541732, 0), V(42.801373, -15.541732, 0)),  # 1
    Part.LineSegment(V(42.801373, -15.541732, 0), V(42.801373, -17.017265, 0)),  # 2
    Part.LineSegment(V(42.801373, -17.017265, 0), V(36.95523, -17.017265, 0)),  # 3
    Part.LineSegment(V(36.95523, -17.017265, 0), V(7.7949, 31.491888, 0)),  # 4
    Part.LineSegment(V(7.7949, 31.491888, 0), V(4.688712, 31.491888, 0)),  # 5
    Part.LineSegment(V(4.688712, 31.491888, 0), V(4.688712, 36.336611, 0)),  # 6
    Part.LineSegment(V(4.688712, 36.336611, 0), V(7.7949, 36.336611, 0)),  # 7
], False)
sketch14.addConstraint([
    Sketcher.Constraint("Coincident", 0, 2, 1, 1),
    Sketcher.Constraint("Coincident", 1, 2, 2, 1),
    Sketcher.Constraint("Coincident", 2, 2, 3, 1),
    Sketcher.Constraint("Coincident", 3, 2, 4, 1),
    Sketcher.Constraint("Coincident", 4, 2, 5, 1),
    Sketcher.Constraint("Coincident", 5, 2, 6, 1),
    Sketcher.Constraint("Coincident", 6, 2, 7, 1),
    Sketcher.Constraint("Coincident", 7, 2, 0, 1),
    Sketcher.Constraint("Horizontal", 1),
    Sketcher.Constraint("Vertical", 2),
    Sketcher.Constraint("Horizontal", 3),
    Sketcher.Constraint("Horizontal", 5),
    Sketcher.Constraint("Vertical", 6),
    Sketcher.Constraint("Horizontal", 7),
    Sketcher.Constraint("Vertical", 4, 2, 7, 2),
    Sketcher.Constraint("DistanceX", 1, 1, 1, 2, Q("3.81434 mm")),
    Sketcher.Constraint("DistanceX", -1, 1, 4, 2, Q("7.7949 mm")),
    Sketcher.Constraint("Distance", 0, Q("60.533558 mm")),
    Sketcher.Constraint("Distance", 4, Q("56.599141 mm")),
    Sketcher.Constraint("DistanceX", 3, 2, 3, 1, Q("5.846144 mm")),
    Sketcher.Constraint("DistanceX", 5, 2, 5, 1, Q("3.106187 mm")),
    Sketcher.Constraint("DistanceY", 2, 2, 2, 1, Q("1.475533 mm")),
    Sketcher.Constraint("DistanceX", -1, 1, 3, 2, Q("36.95523 mm")),
    Sketcher.Constraint("DistanceY", -1, 1, 6, 2, Q("36.336611 mm")),
])
pad10 = body.newObject("PartDesign::Pad", "Pad009")
pad10.Profile = sketch14
pad10.Length = 6

# Sketch on YZ plane
sketch15 = body.newObject("Sketcher::SketchObject", "Sketch014")
sketch15.AttachmentSupport = (doc.getObject("YZ_Plane"), [""])
sketch15.MapMode = "FlatFace"
sketch15.AttachmentOffset = App.Placement(V(0, 0, -119.502017), App.Rotation())
sketch15.addGeometry([
    Part.LineSegment(V(-0.491017, -22.278203, 0), V(0.853413, -23.05441, 0)),  # 0
    Part.LineSegment(V(0.853413, -23.05441, 0), V(0.853413, -24.606825, 0)),  # 1
    Part.LineSegment(V(0.853413, -24.606825, 0), V(-0.491017, -25.383032, 0)),  # 2
    Part.LineSegment(V(-0.491017, -25.383032, 0), V(-1.835447, -24.606825, 0)),  # 3
    Part.LineSegment(V(-1.835447, -24.606825, 0), V(-1.835447, -23.05441, 0)),  # 4
    Part.LineSegment(V(-1.835447, -23.05441, 0), V(-0.491017, -22.278203, 0)),  # 5
], False)
sketch15.addConstraint([
    Sketcher.Constraint("Coincident", 0, 2, 1, 1),
    Sketcher.Constraint("Coincident", 1, 2, 2, 1),
    Sketcher.Constraint("Coincident", 2, 2, 3, 1),
    Sketcher.Constraint("Coincident", 3, 2, 4, 1),
    Sketcher.Constraint("Coincident", 4, 2, 5, 1),
    Sketcher.Constraint("Coincident", 5, 2, 0, 1),
    Sketcher.Constraint("Vertical", 1),
    Sketcher.Constraint("Vertical", 4),
    Sketcher.Constraint("Parallel", 0, 3),
    Sketcher.Constraint("Parallel", 2, 5),
    Sketcher.Constraint("Horizontal", 1, 2, 3, 2),
    Sketcher.Constraint("Horizontal", 0, 2, 4, 2),
    Sketcher.Constraint("Vertical", 2, 2, 5, 2),
    Sketcher.Constraint("Angle", 0, Q("-30 deg")),
    Sketcher.Constraint("DistanceY", 1, 2, 1, 1, Q("1.552414 mm")),
    Sketcher.Constraint("DistanceY", 0, 2, -1, 1, Q("23.05441 mm")),
    Sketcher.Constraint("DistanceY", 2, 2, -1, 1, Q("25.383032 mm")),
    Sketcher.Constraint("DistanceX", -1, 1, 0, 2, Q("0.853413 mm")),
])
pad11 = body.newObject("PartDesign::Pad", "Pad010")
pad11.Profile = sketch15
pad11.Length = 1
pad11.Reversed = True

# Sketch on YZ plane
sketch16 = body.newObject("Sketcher::SketchObject", "Sketch015")
sketch16.AttachmentSupport = (doc.getObject("YZ_Plane"), [""])
sketch16.MapMode = "FlatFace"
sketch16.AttachmentOffset = App.Placement(V(0, 0, -106.802017), App.Rotation())
sketch16.addGeometry(Part.Circle(V(-0.571927, -24.05985, 0), V(0, 0, 1), 0.785617), False)
sketch16.addConstraint([
    Sketcher.Constraint("Diameter", 0, Q("1.571234 mm")),
    Sketcher.Constraint("DistanceY", 0, 3, -1, 1, Q("24.05985 mm")),
    Sketcher.Constraint("DistanceX", 0, 3, -1, 1, Q("0.571927 mm")),
])
pad12 = body.newObject("PartDesign::Pad", "Pad011")
pad12.Profile = sketch16
pad12.Length = 13
pad12.Reversed = True

# Sketch on YZ plane
sketch17 = body.newObject("Sketcher::SketchObject", "Sketch016")
sketch17.AttachmentSupport = (doc.getObject("YZ_Plane"), [""])
sketch17.MapMode = "FlatFace"
sketch17.AttachmentOffset = App.Placement(V(0, 0, -26.27478), App.Rotation())
sketch17.addGeometry([
    Part.LineSegment(V(0, -25.538353, 0), V(1.388737, -24.736565, 0)),  # 0
    Part.LineSegment(V(1.388737, -24.736565, 0), V(1.388737, -23.13299, 0)),  # 1
    Part.LineSegment(V(1.388737, -23.13299, 0), V(0, -22.331202, 0)),  # 2
    Part.LineSegment(V(0, -22.331202, 0), V(-1.388737, -23.13299, 0)),  # 3
    Part.LineSegment(V(-1.388737, -23.13299, 0), V(-1.388737, -24.736565, 0)),  # 4
    Part.LineSegment(V(-1.388737, -24.736565, 0), V(0, -25.538353, 0)),  # 5
], False)
sketch17.addConstraint([
    Sketcher.Constraint("Coincident", 0, 2, 1, 1),
    Sketcher.Constraint("Coincident", 1, 2, 2, 1),
    Sketcher.Constraint("Coincident", 2, 2, 3, 1),
    Sketcher.Constraint("Coincident", 3, 2, 4, 1),
    Sketcher.Constraint("Coincident", 4, 2, 5, 1),
    Sketcher.Constraint("Coincident", 5, 2, 0, 1),
    Sketcher.Constraint("Vertical", 1),
    Sketcher.Constraint("Vertical", 4),
    Sketcher.Constraint("Symmetric", 1, 2, 3, 2, -2),
    Sketcher.Constraint("PointOnObject", 2, 2, -2),
    Sketcher.Constraint("PointOnObject", 5, 2, -2),
    Sketcher.Constraint("Parallel", 0, 3),
    Sketcher.Constraint("Parallel", 2, 5),
    Sketcher.Constraint("Angle", 0, Q("30 deg")),
    Sketcher.Constraint("DistanceY", 1, 1, 1, 2, Q("1.603576 mm")),
    Sketcher.Constraint("DistanceY", 1, 2, -1, 1, Q("23.13299 mm")),
    Sketcher.Constraint("DistanceY", 5, 2, 2, 2, Q("3.207151 mm")),
])
pad13 = body.newObject("PartDesign::Pad", "Pad012")
pad13.Profile = sketch17
pad13.Length = 1

# Sketch on YZ plane
sketch18 = body.newObject("Sketcher::SketchObject", "Sketch017")
sketch18.AttachmentSupport = (doc.getObject("YZ_Plane"), [""])
sketch18.MapMode = "FlatFace"
sketch18.AttachmentOffset = App.Placement(V(0, 0, -38.27478), App.Rotation())
sketch18.addGeometry(Part.Circle(V(-0.528697, -23.747896, 0), V(0, 0, 1), 0.813635), False)
sketch18.addConstraint([
    Sketcher.Constraint("Diameter", 0, Q("1.627271 mm")),
    Sketcher.Constraint("DistanceX", 0, 3, -1, 1, Q("0.528697 mm")),
    Sketcher.Constraint("DistanceY", 0, 3, -1, 1, Q("23.747896 mm")),
])
pad14 = body.newObject("PartDesign::Pad", "Pad013")
pad14.Profile = sketch18
pad14.Length = 12

doc.recompute()
